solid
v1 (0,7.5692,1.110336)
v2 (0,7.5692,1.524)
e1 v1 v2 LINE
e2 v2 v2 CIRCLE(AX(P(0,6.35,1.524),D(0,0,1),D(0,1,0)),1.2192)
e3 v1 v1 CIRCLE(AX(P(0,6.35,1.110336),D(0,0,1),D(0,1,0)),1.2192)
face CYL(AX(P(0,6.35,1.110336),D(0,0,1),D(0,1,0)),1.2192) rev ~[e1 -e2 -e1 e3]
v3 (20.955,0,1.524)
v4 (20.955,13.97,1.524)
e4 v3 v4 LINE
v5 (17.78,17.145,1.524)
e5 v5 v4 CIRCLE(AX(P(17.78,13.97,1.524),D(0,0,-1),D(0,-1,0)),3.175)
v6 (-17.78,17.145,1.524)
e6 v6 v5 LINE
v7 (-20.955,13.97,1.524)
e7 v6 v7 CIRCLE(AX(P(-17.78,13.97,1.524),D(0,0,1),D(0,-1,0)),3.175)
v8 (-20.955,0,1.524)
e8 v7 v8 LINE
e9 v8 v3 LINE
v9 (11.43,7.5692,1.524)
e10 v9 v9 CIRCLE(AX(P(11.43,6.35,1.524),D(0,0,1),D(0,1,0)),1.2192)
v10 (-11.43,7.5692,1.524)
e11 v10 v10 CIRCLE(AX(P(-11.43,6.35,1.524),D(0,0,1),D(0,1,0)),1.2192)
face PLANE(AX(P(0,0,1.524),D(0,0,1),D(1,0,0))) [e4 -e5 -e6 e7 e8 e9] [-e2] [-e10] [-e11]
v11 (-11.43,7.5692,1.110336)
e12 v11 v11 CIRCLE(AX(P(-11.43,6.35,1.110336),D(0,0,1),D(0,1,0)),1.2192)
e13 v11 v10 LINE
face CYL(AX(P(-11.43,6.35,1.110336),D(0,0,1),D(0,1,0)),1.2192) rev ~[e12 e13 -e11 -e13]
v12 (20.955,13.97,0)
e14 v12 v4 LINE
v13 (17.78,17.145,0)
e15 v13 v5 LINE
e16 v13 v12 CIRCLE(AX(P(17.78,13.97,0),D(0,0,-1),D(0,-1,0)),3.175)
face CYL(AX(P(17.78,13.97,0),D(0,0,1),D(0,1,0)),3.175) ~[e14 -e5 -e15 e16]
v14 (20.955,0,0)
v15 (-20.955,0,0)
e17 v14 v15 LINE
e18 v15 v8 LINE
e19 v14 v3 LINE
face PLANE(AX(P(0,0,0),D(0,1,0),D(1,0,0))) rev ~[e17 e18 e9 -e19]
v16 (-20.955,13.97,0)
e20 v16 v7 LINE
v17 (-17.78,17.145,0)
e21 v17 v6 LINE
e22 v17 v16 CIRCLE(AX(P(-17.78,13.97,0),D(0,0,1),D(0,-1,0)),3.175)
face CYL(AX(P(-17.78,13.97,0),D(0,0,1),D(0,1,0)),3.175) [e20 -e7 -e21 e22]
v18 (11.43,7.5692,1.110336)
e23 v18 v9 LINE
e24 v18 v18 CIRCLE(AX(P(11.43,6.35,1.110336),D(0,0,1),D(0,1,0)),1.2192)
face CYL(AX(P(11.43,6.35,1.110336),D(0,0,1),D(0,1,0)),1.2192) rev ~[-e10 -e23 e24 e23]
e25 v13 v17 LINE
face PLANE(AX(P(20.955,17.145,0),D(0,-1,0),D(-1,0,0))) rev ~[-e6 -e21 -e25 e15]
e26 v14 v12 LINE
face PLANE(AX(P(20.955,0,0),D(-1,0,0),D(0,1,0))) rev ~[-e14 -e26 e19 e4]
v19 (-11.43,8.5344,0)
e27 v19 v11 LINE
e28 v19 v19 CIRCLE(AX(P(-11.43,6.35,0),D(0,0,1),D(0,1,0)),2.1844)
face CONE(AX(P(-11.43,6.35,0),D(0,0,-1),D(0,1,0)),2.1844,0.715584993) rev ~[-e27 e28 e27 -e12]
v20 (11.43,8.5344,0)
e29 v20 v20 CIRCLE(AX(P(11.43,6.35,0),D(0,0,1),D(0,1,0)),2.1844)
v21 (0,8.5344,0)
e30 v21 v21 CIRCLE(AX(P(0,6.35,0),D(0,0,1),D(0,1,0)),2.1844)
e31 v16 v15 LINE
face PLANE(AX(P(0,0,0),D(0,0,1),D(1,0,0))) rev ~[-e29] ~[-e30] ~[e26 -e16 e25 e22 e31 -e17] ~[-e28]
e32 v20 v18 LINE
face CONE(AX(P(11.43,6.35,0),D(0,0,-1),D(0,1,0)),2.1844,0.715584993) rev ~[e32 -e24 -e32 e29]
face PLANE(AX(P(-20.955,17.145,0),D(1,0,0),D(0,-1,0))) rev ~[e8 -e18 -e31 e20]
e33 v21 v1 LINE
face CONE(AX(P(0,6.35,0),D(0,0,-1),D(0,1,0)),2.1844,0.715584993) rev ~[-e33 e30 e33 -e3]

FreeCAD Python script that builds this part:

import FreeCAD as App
import Part
import Sketcher
from FreeCAD import Vector
Q = App.Units.Quantity


def edges_at(feature, points):
    """Names of the edges that pass closest to the given points."""
    edges = feature.Shape.Edges
    near = lambda p: min(range(len(edges)), key=lambda i: edges[i].distToShape(Part.Vertex(*p))[0])
    return sorted({f"Edge{near(p) + 1}" for p in points})

doc = App.newDocument("Part")
body = doc.addObject("PartDesign::Body", "Body")

sketch1 = body.newObject("Sketcher::SketchObject", "Sketch")
sketch1.AttachmentSupport = (doc.getObject("XY_Plane"), [""])
sketch1.MapMode = "FlatFace"
sketch1.addGeometry(Part.LineSegment(Vector(21, 17, 0), Vector(-21, 17, 0)), False)
sketch1.addGeometry(Part.LineSegment(Vector(-21, 17, 0), Vector(-21, 0, 0)), False)
sketch1.addGeometry(Part.LineSegment(Vector(-21, 0, 0), Vector(21, 0, 0)), False)
sketch1.addGeometry(Part.LineSegment(Vector(21, 0, 0), Vector(21, 17, 0)), False)
sketch1.addConstraint(Sketcher.Constraint("Coincident", 0, 2, 1, 1))
sketch1.addConstraint(Sketcher.Constraint("Coincident", 1, 2, 2, 1))
sketch1.addConstraint(Sketcher.Constraint("Coincident", 2, 2, 3, 1))
sketch1.addConstraint(Sketcher.Constraint("Coincident", 3, 2, 0, 1))
sketch1.addConstraint(Sketcher.Constraint("Horizontal", 0))
sketch1.addConstraint(Sketcher.Constraint("Vertical", 1))
sketch1.addConstraint(Sketcher.Constraint("Horizontal", 2))
sketch1.addConstraint(Sketcher.Constraint("Vertical", 3))
sketch1.addConstraint(Sketcher.Constraint("Symmetric", 1, 2, 2, 2, -1, 1))
sketch1.addConstraint(Sketcher.Constraint("DistanceX", 0, 2, 0, 1, Q("1.65 in")))
sketch1.addConstraint(Sketcher.Constraint("DistanceY", 1, 2, 1, 1, Q("0.675 in")))
pad1 = body.newObject("PartDesign::Pad", "Pad")
pad1.Profile = sketch1
pad1.Length = Q("0.06 in")
doc.recompute()

fillet = body.newObject("PartDesign::Fillet", "Fillet")
fillet.Base = (pad1, edges_at(pad1, [(20.955, 17.145, 0.762), (-20.955, 17.145, 0.762)]))
fillet.Radius = Q("0.125 in")

sketch2 = body.newObject("Sketcher::SketchObject", "Sketch001")
sketch2.AttachmentSupport = (doc.getObject("XY_Plane"), [""])
sketch2.MapMode = "FlatFace"
sketch2.addGeometry(Part.Circle(Vector(-11.4, 6.3, 0), Vector(0, 0, 1), 1.2), False)
sketch2.addGeometry(Part.Circle(Vector(0, 6.3, 0), Vector(0, 0, 1), 1.2), False)
sketch2.addGeometry(Part.Circle(Vector(11.4, 6.3, 0), Vector(0, 0, 1), 1.2), False)
sketch2.addConstraint(Sketcher.Constraint("Equal", 0, 1))
sketch2.addConstraint(Sketcher.Constraint("Equal", 1, 2))
sketch2.addConstraint(Sketcher.Constraint("Symmetric", 0, 3, 2, 3, -2))
sketch2.addConstraint(Sketcher.Constraint("PointOnObject", 1, 3, -2))
sketch2.addConstraint(Sketcher.Constraint("Horizontal", 0, 3, 1, 3))
sketch2.addConstraint(Sketcher.Constraint("Diameter", 0, Q("0.096 in")))
sketch2.addConstraint(Sketcher.Constraint("DistanceX", 0, 3, 2, 3, Q("0.9 in")))
sketch2.addConstraint(Sketcher.Constraint("DistanceY", -1, 1, 0, 3, Q("0.25 in")))
doc.recompute()
hole = body.newObject("PartDesign::Hole", "Hole")
hole.Profile = sketch2
hole.ThreadType = "None"
hole.Diameter = Q("0.096 in")
hole.DepthType = "ThroughAll"
hole.HoleCutType = "Countersink"
hole.HoleCutDiameter = Q("0.172 in")
hole.HoleCutCountersinkAngle = 82
hole.Reversed = True

doc.recompute()
